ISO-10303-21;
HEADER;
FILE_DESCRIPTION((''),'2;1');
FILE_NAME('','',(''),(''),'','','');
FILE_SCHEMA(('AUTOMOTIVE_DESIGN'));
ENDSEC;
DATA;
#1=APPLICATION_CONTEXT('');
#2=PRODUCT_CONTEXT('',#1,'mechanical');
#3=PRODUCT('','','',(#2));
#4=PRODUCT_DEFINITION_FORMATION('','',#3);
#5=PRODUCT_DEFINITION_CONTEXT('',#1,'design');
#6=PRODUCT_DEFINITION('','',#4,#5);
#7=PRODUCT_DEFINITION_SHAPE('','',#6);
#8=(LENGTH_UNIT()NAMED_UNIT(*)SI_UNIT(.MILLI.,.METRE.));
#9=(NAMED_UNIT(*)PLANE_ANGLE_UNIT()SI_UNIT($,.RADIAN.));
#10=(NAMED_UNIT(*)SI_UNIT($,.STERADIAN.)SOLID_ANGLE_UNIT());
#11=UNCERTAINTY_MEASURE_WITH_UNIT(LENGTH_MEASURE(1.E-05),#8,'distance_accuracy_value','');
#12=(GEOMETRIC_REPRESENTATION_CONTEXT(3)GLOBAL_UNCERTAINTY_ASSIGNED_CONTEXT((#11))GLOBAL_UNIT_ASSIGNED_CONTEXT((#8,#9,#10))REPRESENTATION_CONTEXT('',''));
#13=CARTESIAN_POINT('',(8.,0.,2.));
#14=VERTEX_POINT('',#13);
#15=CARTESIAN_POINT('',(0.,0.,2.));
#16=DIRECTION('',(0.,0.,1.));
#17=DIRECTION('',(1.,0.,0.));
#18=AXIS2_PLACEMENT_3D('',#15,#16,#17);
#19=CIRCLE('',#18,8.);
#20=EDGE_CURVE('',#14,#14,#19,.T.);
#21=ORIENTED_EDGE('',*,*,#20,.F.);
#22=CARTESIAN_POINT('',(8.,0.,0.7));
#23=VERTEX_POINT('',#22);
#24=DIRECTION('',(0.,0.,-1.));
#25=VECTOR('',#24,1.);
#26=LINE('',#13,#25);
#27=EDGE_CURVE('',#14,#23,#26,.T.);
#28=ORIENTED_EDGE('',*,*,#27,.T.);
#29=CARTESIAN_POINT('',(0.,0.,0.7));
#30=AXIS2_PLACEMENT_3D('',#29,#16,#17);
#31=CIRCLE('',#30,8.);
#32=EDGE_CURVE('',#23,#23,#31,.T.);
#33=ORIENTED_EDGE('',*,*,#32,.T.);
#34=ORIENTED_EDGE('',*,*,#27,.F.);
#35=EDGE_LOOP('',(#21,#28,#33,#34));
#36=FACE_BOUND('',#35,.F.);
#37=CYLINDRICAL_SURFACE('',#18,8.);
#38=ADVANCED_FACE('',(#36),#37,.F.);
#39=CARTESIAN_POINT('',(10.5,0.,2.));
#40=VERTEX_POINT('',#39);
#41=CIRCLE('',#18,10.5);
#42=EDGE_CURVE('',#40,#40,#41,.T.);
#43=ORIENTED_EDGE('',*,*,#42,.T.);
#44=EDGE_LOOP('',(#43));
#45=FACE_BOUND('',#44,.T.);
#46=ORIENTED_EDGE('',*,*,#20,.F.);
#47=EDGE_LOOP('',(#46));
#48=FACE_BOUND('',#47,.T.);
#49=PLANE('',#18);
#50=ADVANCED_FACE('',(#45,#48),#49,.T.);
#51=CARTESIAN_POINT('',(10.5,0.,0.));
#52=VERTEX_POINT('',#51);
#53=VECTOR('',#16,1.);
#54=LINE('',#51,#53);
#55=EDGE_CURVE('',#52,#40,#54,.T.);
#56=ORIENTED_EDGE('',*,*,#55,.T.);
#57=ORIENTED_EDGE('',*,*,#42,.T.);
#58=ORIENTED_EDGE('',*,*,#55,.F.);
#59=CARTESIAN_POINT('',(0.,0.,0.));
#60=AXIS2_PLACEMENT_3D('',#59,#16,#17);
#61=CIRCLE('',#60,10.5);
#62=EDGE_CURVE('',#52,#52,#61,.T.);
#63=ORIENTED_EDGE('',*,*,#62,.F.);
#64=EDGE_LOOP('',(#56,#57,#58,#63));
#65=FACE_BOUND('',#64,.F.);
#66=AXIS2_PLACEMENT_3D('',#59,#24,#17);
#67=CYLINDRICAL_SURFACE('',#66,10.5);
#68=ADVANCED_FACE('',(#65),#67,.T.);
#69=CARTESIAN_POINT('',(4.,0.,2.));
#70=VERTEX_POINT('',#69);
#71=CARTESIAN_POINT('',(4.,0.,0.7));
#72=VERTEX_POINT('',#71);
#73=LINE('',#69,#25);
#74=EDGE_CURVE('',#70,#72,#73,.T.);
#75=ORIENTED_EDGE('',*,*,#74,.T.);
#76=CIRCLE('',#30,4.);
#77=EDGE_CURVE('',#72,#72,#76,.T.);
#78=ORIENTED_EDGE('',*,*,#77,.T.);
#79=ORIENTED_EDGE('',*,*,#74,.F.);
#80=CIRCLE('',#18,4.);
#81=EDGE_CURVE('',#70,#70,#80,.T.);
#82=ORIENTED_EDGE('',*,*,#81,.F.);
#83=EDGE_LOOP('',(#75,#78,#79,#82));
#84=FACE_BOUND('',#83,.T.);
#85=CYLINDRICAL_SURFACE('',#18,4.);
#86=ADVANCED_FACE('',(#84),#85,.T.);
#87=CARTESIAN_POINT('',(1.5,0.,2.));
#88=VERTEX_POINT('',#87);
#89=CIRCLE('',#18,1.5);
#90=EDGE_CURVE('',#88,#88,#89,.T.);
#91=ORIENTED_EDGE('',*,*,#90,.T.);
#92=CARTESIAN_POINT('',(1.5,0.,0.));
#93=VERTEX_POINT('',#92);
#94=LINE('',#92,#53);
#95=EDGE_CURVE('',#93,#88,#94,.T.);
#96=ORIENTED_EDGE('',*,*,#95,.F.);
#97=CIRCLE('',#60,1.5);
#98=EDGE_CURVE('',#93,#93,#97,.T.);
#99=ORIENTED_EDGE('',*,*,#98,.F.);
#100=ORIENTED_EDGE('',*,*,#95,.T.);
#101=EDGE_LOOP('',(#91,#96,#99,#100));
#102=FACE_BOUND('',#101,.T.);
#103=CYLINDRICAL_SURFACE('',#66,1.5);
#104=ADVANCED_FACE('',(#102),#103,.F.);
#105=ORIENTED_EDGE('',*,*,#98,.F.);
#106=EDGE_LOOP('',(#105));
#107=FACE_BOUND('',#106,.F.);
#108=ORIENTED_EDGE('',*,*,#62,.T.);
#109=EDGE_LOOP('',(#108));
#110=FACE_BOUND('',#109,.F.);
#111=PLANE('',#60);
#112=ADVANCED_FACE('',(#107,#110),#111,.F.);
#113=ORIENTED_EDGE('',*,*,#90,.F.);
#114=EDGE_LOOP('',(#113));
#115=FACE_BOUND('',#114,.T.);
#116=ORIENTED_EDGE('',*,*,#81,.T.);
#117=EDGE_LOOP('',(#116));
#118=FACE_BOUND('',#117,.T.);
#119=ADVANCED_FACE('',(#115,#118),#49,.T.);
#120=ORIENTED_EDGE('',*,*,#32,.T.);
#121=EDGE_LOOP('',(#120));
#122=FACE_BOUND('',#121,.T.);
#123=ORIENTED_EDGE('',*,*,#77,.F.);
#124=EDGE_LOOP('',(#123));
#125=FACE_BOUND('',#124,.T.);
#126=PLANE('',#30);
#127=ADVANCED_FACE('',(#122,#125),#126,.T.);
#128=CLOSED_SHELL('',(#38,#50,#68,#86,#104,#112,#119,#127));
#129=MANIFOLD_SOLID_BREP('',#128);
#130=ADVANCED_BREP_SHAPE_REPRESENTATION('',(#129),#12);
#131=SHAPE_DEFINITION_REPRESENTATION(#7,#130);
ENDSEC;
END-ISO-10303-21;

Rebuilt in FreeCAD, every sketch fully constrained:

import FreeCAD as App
import Part
import Sketcher
from FreeCAD import Vector

doc = App.newDocument("Part")
body = doc.addObject("PartDesign::Body", "Body")

# Sketch on XY plane
sketch1 = body.newObject("Sketcher::SketchObject", "Sketch")
sketch1.AttachmentSupport = (doc.getObject("XY_Plane"), [""])
sketch1.MapMode = "FlatFace"
sketch1.addGeometry(Part.Circle(Vector(0, 0, 0), Vector(0, 0, 1), 10.5), False)
sketch1.addGeometry(Part.Circle(Vector(0, 0, 0), Vector(0, 0, 1), 1.5), False)
sketch1.addConstraint(Sketcher.Constraint("Coincident", 0, 3, -1, 1))
sketch1.addConstraint(Sketcher.Constraint("Coincident", 1, 3, -1, 1))
sketch1.addConstraint(Sketcher.Constraint("Diameter", 0, 21.0))
sketch1.addConstraint(Sketcher.Constraint("Diameter", 1, 3.0))
pad1 = body.newObject("PartDesign::Pad", "Pad")
pad1.Profile = sketch1
pad1.Length = 2

# Sketch on XY plane
sketch2 = body.newObject("Sketcher::SketchObject", "Sketch001")
sketch2.AttachmentSupport = (doc.getObject("XY_Plane"), [""])
sketch2.MapMode = "FlatFace"
sketch2.AttachmentOffset = App.Placement(Vector(0, 0, 2), App.Rotation())
sketch2.addGeometry(Part.Circle(Vector(0, 0, 0), Vector(0, 0, 1), 8), False)
sketch2.addGeometry(Part.Circle(Vector(0, 0, 0), Vector(0, 0, 1), 4), False)
sketch2.addConstraint(Sketcher.Constraint("Coincident", 0, 3, -1, 1))
sketch2.addConstraint(Sketcher.Constraint("Coincident", 1, 3, -1, 1))
sketch2.addConstraint(Sketcher.Constraint("Diameter", 1, 8.0))
sketch2.addConstraint(Sketcher.Constraint("Diameter", 0, 16.0))
pocket1 = body.newObject("PartDesign::Pocket", "Pocket")
pocket1.Profile = sketch2
pocket1.Length = 1.3

doc.recompute()
